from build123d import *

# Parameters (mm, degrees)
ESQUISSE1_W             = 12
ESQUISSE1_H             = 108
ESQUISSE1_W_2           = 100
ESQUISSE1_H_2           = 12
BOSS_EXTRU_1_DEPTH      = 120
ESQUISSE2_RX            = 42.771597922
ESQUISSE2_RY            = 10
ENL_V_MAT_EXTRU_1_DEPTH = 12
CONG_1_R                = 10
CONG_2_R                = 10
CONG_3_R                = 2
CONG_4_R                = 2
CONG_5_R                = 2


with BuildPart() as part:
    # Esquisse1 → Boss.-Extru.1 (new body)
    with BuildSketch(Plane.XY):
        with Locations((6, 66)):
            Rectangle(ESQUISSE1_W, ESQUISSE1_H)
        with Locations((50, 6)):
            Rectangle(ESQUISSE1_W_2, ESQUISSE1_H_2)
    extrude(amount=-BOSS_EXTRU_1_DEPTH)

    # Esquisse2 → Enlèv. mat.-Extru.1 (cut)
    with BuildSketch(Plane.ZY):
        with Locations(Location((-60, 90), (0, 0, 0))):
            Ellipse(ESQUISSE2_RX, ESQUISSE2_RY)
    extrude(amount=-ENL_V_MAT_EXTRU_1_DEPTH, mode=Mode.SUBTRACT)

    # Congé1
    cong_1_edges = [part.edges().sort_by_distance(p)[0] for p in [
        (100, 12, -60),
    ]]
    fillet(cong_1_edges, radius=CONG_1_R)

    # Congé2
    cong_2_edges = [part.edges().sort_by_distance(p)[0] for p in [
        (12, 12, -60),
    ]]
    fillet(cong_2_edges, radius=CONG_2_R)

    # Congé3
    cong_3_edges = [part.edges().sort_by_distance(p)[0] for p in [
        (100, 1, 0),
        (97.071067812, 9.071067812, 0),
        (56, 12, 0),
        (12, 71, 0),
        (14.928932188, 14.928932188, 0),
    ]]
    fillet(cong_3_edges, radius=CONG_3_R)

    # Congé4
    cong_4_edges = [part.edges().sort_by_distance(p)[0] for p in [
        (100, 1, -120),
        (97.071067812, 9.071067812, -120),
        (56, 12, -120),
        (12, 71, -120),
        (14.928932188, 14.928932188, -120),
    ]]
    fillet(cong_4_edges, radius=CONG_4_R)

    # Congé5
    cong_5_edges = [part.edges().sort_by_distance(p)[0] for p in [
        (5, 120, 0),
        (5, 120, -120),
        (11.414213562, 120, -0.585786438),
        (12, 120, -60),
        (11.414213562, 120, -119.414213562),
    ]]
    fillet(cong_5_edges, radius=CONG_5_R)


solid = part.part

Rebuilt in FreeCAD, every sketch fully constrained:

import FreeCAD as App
import Part
import Sketcher

V = App.Vector
Q = App.Units.Quantity


def edges_at(feature, points):
    """Names of the edges that pass closest to the given points."""
    edges = feature.Shape.Edges
    near = lambda p: min(range(len(edges)), key=lambda i: edges[i].distToShape(Part.Vertex(*p))[0])
    return sorted({f"Edge{near(p) + 1}" for p in points})

doc = App.newDocument("Part")
body = doc.addObject("PartDesign::Body", "Body")

sketch1 = body.newObject("Sketcher::SketchObject", "Sketch")
sketch1.AttachmentSupport = (doc.getObject("XY_Plane"), [""])
sketch1.MapMode = "FlatFace"
sketch1.addGeometry([
    Part.LineSegment(V(0, 120, 0), V(0, 0, 0)),
    Part.LineSegment(V(0, 0, 0), V(100, 0, 0)),
    Part.LineSegment(V(100, 0, 0), V(100, 12, 0)),
    Part.LineSegment(V(100, 12, 0), V(12, 12, 0)),
    Part.LineSegment(V(12, 12, 0), V(12, 120, 0)),
    Part.LineSegment(V(12, 120, 0), V(0, 120, 0)),
], False)
sketch1.addConstraint([
    Sketcher.Constraint("Coincident", 0, 2, 1, 1),
    Sketcher.Constraint("Coincident", 1, 2, 2, 1),
    Sketcher.Constraint("Coincident", 2, 2, 3, 1),
    Sketcher.Constraint("Coincident", 3, 2, 4, 1),
    Sketcher.Constraint("Coincident", 4, 2, 5, 1),
    Sketcher.Constraint("Coincident", 5, 2, 0, 1),
    Sketcher.Constraint("Vertical", 0),
    Sketcher.Constraint("Horizontal", 1),
    Sketcher.Constraint("Vertical", 2),
    Sketcher.Constraint("Horizontal", 3),
    Sketcher.Constraint("Vertical", 4),
    Sketcher.Constraint("Horizontal", 5),
    Sketcher.Constraint("Coincident", 0, 2, -1, 1),
    Sketcher.Constraint("Equal", 5, 2),
    Sketcher.Constraint("DistanceX", 1, 1, 1, 2, Q("100 mm")),
    Sketcher.Constraint("DistanceX", 3, 2, 3, 1, Q("88 mm")),
    Sketcher.Constraint("DistanceY", 0, 2, 0, 1, Q("120 mm")),
])
pad1 = body.newObject("PartDesign::Pad", "Pad")
pad1.Profile = sketch1
pad1.Length = 120
pad1.Reversed = True

sketch2 = body.newObject("Sketcher::SketchObject", "Sketch001")
sketch2.AttachmentSupport = (doc.getObject("YZ_Plane"), [""])
sketch2.MapMode = "FlatFace"
sketch2.addGeometry(Part.Ellipse(V(90, -17.228402, 0), V(80, -60, 0), V(90, -60, 0)), False)
sketch2.addConstraint(Sketcher.Constraint("Block", 0))
pocket1 = body.newObject("PartDesign::Pocket", "Pocket")
pocket1.Profile = sketch2
pocket1.Length = 12
pocket1.Reversed = True
doc.recompute()

fillet = body.newObject("PartDesign::Fillet", "Fillet")
fillet.Base = (pocket1, edges_at(pocket1, [(100, 12, -60)]))
fillet.Radius = 10
doc.recompute()

fillet2 = body.newObject("PartDesign::Fillet", "Fillet001")
fillet2.Base = (fillet, edges_at(fillet, [(12, 12, -60)]))
fillet2.Radius = 10
doc.recompute()

fillet3 = body.newObject("PartDesign::Fillet", "Fillet002")
fillet3.Base = (fillet2, edges_at(fillet2, [
    (100, 1, 0),
    (97.071, 9.071, 0),
    (56, 12, 0),
    (12, 71, 0),
    (14.929, 14.929, 0),
]))
fillet3.Radius = 2
doc.recompute()

fillet4 = body.newObject("PartDesign::Fillet", "Fillet003")
fillet4.Base = (fillet3, edges_at(fillet3, [
    (100, 1, -120),
    (97.071, 9.071, -120),
    (56, 12, -120),
    (12, 71, -120),
    (14.929, 14.929, -120),
]))
fillet4.Radius = 2
doc.recompute()

fillet5 = body.newObject("PartDesign::Fillet", "Fillet004")
fillet5.Base = (fillet4, edges_at(fillet4, [
    (5, 120, 0),
    (5, 120, -120),
    (11.414, 120, -0.586),
    (12, 120, -60),
    (11.414, 120, -119.414),
]))
fillet5.Radius = 2

doc.recompute()
